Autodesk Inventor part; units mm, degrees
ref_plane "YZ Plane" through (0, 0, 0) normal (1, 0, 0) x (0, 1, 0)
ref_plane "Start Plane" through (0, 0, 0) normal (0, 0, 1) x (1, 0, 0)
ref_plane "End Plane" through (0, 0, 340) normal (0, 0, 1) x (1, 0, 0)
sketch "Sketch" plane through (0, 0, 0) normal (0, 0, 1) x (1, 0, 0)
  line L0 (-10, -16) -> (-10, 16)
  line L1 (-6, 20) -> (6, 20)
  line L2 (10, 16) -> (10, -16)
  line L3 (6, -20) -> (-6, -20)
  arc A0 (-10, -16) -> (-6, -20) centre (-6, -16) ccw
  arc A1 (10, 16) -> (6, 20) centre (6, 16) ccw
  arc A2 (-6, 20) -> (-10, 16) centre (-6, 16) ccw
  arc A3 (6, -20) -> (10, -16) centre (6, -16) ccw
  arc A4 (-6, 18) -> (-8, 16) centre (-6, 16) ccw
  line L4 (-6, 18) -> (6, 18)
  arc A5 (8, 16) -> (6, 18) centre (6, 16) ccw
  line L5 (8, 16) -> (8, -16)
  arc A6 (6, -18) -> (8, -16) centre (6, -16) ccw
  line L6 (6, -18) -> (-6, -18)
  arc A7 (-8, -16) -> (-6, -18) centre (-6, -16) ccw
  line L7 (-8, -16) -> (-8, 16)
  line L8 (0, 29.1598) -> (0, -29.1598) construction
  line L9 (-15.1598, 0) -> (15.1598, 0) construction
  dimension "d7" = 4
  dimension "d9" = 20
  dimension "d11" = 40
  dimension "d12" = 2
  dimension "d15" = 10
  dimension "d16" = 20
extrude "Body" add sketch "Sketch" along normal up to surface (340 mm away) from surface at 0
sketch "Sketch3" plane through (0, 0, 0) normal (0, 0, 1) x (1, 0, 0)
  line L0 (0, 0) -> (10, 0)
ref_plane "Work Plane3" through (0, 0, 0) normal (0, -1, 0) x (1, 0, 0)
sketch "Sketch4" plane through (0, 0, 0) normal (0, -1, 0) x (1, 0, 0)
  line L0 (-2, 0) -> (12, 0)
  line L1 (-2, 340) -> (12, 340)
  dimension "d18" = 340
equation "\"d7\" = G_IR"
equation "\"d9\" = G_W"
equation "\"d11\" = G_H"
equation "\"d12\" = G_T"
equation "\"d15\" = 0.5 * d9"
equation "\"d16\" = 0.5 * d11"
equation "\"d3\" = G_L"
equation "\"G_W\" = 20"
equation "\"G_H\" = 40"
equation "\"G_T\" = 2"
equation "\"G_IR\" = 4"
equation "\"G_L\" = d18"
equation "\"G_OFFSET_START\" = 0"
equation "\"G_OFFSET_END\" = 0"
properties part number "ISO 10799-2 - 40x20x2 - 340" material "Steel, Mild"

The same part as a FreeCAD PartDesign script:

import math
import FreeCAD as App
import Part
import Sketcher
Q = App.Units.Quantity

doc = App.newDocument("Part")
params = doc.addObject("Spreadsheet::Sheet", "Params")
for row, (alias, value) in enumerate([
    ("sketch1_radius", "4 mm"),
    ("sketch1_radius2", "2 mm"),
    ("pad1_length", "340 mm"),
], start=1):
    params.set(f"A{row}", alias)
    params.set(f"B{row}", "=" + value)
    params.setAlias(f"B{row}", alias)

body = doc.addObject("PartDesign::Body", "Body")

# Sketch on XY plane
sketch1 = body.newObject("Sketcher::SketchObject", "Sketch")
sketch1.AttachmentSupport = (doc.getObject("XY_Plane"), [""])
sketch1.MapMode = "FlatFace"
sketch1.addGeometry(Part.LineSegment(App.Vector(-10, 16, 0), App.Vector(-10, -16, 0)), False)
sketch1.addGeometry(Part.ArcOfCircle(Part.Circle(App.Vector(-6, -16, 0), App.Vector(0, 0, 1), 4), math.radians(180), math.radians(270)), False)
sketch1.addGeometry(Part.LineSegment(App.Vector(-6, -20, 0), App.Vector(6, -20, 0)), False)
sketch1.addGeometry(Part.ArcOfCircle(Part.Circle(App.Vector(6, -16, 0), App.Vector(0, 0, 1), 4), math.radians(-90), math.radians(0)), False)
sketch1.addGeometry(Part.LineSegment(App.Vector(10, -16, 0), App.Vector(10, 16, 0)), False)
sketch1.addGeometry(Part.ArcOfCircle(Part.Circle(App.Vector(6, 16, 0), App.Vector(0, 0, 1), 4), math.radians(0), math.radians(90)), False)
sketch1.addGeometry(Part.LineSegment(App.Vector(6, 20, 0), App.Vector(-6, 20, 0)), False)
sketch1.addGeometry(Part.ArcOfCircle(Part.Circle(App.Vector(-6, 16, 0), App.Vector(0, 0, 1), 4), math.radians(90), math.radians(180)), False)
sketch1.addGeometry(Part.ArcOfCircle(Part.Circle(App.Vector(-6, 16, 0), App.Vector(0, 0, 1), 2), math.radians(90), math.radians(180)), False)
sketch1.addGeometry(Part.LineSegment(App.Vector(-6, 18, 0), App.Vector(6, 18, 0)), False)
sketch1.addGeometry(Part.ArcOfCircle(Part.Circle(App.Vector(6, 16, 0), App.Vector(0, 0, 1), 2), math.radians(0), math.radians(90)), False)
sketch1.addGeometry(Part.LineSegment(App.Vector(8, 16, 0), App.Vector(8, -16, 0)), False)
sketch1.addGeometry(Part.ArcOfCircle(Part.Circle(App.Vector(6, -16, 0), App.Vector(0, 0, 1), 2), math.radians(-90), math.radians(0)), False)
sketch1.addGeometry(Part.LineSegment(App.Vector(6, -18, 0), App.Vector(-6, -18, 0)), False)
sketch1.addGeometry(Part.ArcOfCircle(Part.Circle(App.Vector(-6, -16, 0), App.Vector(0, 0, 1), 2), math.radians(180), math.radians(270)), False)
sketch1.addGeometry(Part.LineSegment(App.Vector(-8, -16, 0), App.Vector(-8, 16, 0)), False)
sketch1.addConstraint(Sketcher.Constraint("Tangent", 0, 2, 1, 1))
sketch1.addConstraint(Sketcher.Constraint("Tangent", 1, 2, 2, 1))
sketch1.addConstraint(Sketcher.Constraint("Tangent", 2, 2, 3, 1))
sketch1.addConstraint(Sketcher.Constraint("Tangent", 3, 2, 4, 1))
sketch1.addConstraint(Sketcher.Constraint("Tangent", 4, 2, 5, 1))
sketch1.addConstraint(Sketcher.Constraint("Tangent", 5, 2, 6, 1))
sketch1.addConstraint(Sketcher.Constraint("Tangent", 6, 2, 7, 1))
sketch1.addConstraint(Sketcher.Constraint("Tangent", 7, 2, 0, 1))
sketch1.addConstraint(Sketcher.Constraint("Tangent", 8, 1, 9, 1))
sketch1.addConstraint(Sketcher.Constraint("Tangent", 9, 2, 10, 2))
sketch1.addConstraint(Sketcher.Constraint("Tangent", 10, 1, 11, 1))
sketch1.addConstraint(Sketcher.Constraint("Tangent", 11, 2, 12, 2))
sketch1.addConstraint(Sketcher.Constraint("Tangent", 12, 1, 13, 1))
sketch1.addConstraint(Sketcher.Constraint("Tangent", 13, 2, 14, 2))
sketch1.addConstraint(Sketcher.Constraint("Tangent", 14, 1, 15, 1))
sketch1.addConstraint(Sketcher.Constraint("Tangent", 15, 2, 8, 2))
sketch1.addConstraint(Sketcher.Constraint("Vertical", 0))
sketch1.addConstraint(Sketcher.Constraint("Horizontal", 2))
sketch1.addConstraint(Sketcher.Constraint("Vertical", 4))
sketch1.addConstraint(Sketcher.Constraint("Horizontal", 6))
sketch1.addConstraint(Sketcher.Constraint("Horizontal", 9))
sketch1.addConstraint(Sketcher.Constraint("Vertical", 11))
sketch1.addConstraint(Sketcher.Constraint("Horizontal", 13))
sketch1.addConstraint(Sketcher.Constraint("Vertical", 15))
sketch1.addConstraint(Sketcher.Constraint("Coincident", 8, 3, 7, 3))
sketch1.addConstraint(Sketcher.Constraint("Coincident", 10, 3, 5, 3))
sketch1.addConstraint(Sketcher.Constraint("Coincident", 12, 3, 3, 3))
sketch1.addConstraint(Sketcher.Constraint("Equal", 1, 3))
sketch1.addConstraint(Sketcher.Constraint("Equal", 3, 5))
sketch1.addConstraint(Sketcher.Constraint("Equal", 5, 7))
sketch1.addConstraint(Sketcher.Constraint("Equal", 12, 14))
sketch1.addConstraint(Sketcher.Constraint("Symmetric", 1, 3, 5, 3, -1, 1))
sketch1.addConstraint(Sketcher.Constraint("Radius", 1, Q("4 mm")))
sketch1.addConstraint(Sketcher.Constraint("Radius", 8, Q("2 mm")))
sketch1.addConstraint(Sketcher.Constraint("DistanceX", 0, 2, -1, 1, Q("10 mm")))
sketch1.addConstraint(Sketcher.Constraint("DistanceY", 1, 2, -1, 1, Q("20 mm")))
sketch1.setExpression("Constraints[32]", "Params.sketch1_radius")
sketch1.setExpression("Constraints[33]", "Params.sketch1_radius2")
pad1 = body.newObject("PartDesign::Pad", "Pad")
pad1.Profile = sketch1
pad1.setExpression("Length", "Params.pad1_length")

doc.recompute()
